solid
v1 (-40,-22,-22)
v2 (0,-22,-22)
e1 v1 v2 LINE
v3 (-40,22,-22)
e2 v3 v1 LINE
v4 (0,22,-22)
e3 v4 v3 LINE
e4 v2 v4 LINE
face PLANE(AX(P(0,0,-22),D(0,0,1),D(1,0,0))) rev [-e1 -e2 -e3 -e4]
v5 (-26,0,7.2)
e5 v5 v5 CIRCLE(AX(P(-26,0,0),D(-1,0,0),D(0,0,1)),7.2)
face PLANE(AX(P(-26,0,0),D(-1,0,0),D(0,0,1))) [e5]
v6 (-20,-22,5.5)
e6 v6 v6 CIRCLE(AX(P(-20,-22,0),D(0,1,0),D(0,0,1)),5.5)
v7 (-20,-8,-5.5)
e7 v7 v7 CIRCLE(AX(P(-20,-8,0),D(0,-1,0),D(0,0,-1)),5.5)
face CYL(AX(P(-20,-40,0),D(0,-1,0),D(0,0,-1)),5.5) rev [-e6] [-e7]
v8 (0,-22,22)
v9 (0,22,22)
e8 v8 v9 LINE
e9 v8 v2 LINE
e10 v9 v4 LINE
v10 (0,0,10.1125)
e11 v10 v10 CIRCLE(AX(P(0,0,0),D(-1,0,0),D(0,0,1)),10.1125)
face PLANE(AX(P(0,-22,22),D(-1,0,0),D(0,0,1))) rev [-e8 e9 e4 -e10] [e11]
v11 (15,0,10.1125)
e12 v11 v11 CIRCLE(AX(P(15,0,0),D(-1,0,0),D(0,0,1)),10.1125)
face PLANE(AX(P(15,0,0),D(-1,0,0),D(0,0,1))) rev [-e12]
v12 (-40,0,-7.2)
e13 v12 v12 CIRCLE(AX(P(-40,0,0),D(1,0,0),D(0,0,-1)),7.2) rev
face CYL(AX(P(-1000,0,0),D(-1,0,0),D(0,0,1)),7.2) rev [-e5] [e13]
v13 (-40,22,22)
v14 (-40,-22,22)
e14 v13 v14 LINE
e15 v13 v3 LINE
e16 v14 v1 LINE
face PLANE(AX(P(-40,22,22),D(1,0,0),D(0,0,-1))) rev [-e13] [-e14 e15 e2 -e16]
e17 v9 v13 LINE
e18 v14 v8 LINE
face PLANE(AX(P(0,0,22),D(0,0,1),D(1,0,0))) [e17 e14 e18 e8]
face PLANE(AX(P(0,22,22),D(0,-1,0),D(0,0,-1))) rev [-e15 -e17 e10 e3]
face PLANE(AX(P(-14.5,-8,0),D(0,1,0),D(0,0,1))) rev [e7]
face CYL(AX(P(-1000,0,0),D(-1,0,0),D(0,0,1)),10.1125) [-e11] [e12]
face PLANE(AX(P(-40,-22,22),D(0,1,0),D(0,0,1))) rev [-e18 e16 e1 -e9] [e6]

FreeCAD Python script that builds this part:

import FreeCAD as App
import Part
import Sketcher


def add_polygon(sketch, points):
    """Adds a closed chain of lines whose ends are joined by coincident constraints."""
    first, n = sketch.GeometryCount, len(points)
    for a, b in zip(points, points[1:] + points[:1]):
        sketch.addGeometry(Part.LineSegment(App.Vector(*a, 0), App.Vector(*b, 0)), False)
    for i in range(n):
        sketch.addConstraint(Sketcher.Constraint("Coincident", first + i, 2, first + (i + 1) % n, 1))

doc = App.newDocument("Part")
body = doc.addObject("PartDesign::Body", "Body")

# Sketch on XY plane
sketch1 = body.newObject("Sketcher::SketchObject", "Sketch")
sketch1.AttachmentSupport = (doc.getObject("XY_Plane"), [""])
sketch1.MapMode = "FlatFace"
add_polygon(sketch1, [(-40, 22), (-40, -22), (0, -22), (0, 22)])  # lines 0-3
sketch1.addConstraint(Sketcher.Constraint("Vertical", 0))
sketch1.addConstraint(Sketcher.Constraint("Horizontal", 1))
sketch1.addConstraint(Sketcher.Constraint("Vertical", 2))
sketch1.addConstraint(Sketcher.Constraint("Horizontal", 3))
sketch1.addConstraint(Sketcher.Constraint("Symmetric", 1, 2, 2, 2, -1, 1))
sketch1.addConstraint(Sketcher.Constraint("DistanceX", 1, 1, 1, 2, 40.0))
sketch1.addConstraint(Sketcher.Constraint("DistanceY", 0, 2, 0, 1, 44.0))
pad1 = body.newObject("PartDesign::Pad", "Pad")
pad1.Profile = sketch1
pad1.Length = 44
pad1.Midplane = True

# Sketch on XY plane
sketch2 = body.newObject("Sketcher::SketchObject", "Sketch001")
sketch2.AttachmentSupport = (doc.getObject("XY_Plane"), [""])
sketch2.MapMode = "FlatFace"
add_polygon(sketch2, [(0, 10), (0, 0), (15, 0), (15, 10)])  # lines 0-3
sketch2.addConstraint(Sketcher.Constraint("Vertical", 0))
sketch2.addConstraint(Sketcher.Constraint("Horizontal", 1))
sketch2.addConstraint(Sketcher.Constraint("Vertical", 2))
sketch2.addConstraint(Sketcher.Constraint("Horizontal", 3))
sketch2.addConstraint(Sketcher.Constraint("Coincident", 0, 2, -1, 1))
sketch2.addConstraint(Sketcher.Constraint("DistanceX", 1, 1, 1, 2, 15.0))
sketch2.addConstraint(Sketcher.Constraint("DistanceY", 0, 2, 0, 1, 10.1125))
revolution = body.newObject("PartDesign::Revolution", "Revolution")
revolution.Profile = sketch2
revolution.ReferenceAxis = (sketch2, ["H_Axis"])
revolution.Angle = 360

# Sketch on XY plane
sketch3 = body.newObject("Sketcher::SketchObject", "Sketch002")
sketch3.AttachmentSupport = (doc.getObject("XY_Plane"), [""])
sketch3.MapMode = "FlatFace"
add_polygon(sketch3, [(-41, 7), (-41, 0), (-26, 0), (-26, 7)])  # lines 0-3
sketch3.addConstraint(Sketcher.Constraint("Vertical", 0))
sketch3.addConstraint(Sketcher.Constraint("Horizontal", 1))
sketch3.addConstraint(Sketcher.Constraint("Vertical", 2))
sketch3.addConstraint(Sketcher.Constraint("Horizontal", 3))
sketch3.addConstraint(Sketcher.Constraint("PointOnObject", 0, 2, -1))
sketch3.addConstraint(Sketcher.Constraint("DistanceX", 1, 1, 1, 2, 15.0))
sketch3.addConstraint(Sketcher.Constraint("DistanceY", 0, 2, 0, 1, 7.2))
sketch3.addConstraint(Sketcher.Constraint("DistanceX", 0, 2, -1, 1, 41.0))
groove = body.newObject("PartDesign::Groove", "Groove")
groove.Profile = sketch3
groove.ReferenceAxis = (sketch3, ["H_Axis"])
groove.Angle = 360

# Sketch on XY plane
sketch4 = body.newObject("Sketcher::SketchObject", "Sketch003")
sketch4.AttachmentSupport = (doc.getObject("XY_Plane"), [""])
sketch4.MapMode = "FlatFace"
add_polygon(sketch4, [(-20, -8), (-20, -23), (-14, -23), (-14, -8)])  # lines 0-3
sketch4.addGeometry(Part.LineSegment(App.Vector(-20, -23, 0), App.Vector(-20, -8, 0)), True)  # axis
sketch4.addConstraint(Sketcher.Constraint("Vertical", 0))
sketch4.addConstraint(Sketcher.Constraint("Horizontal", 1))
sketch4.addConstraint(Sketcher.Constraint("Vertical", 2))
sketch4.addConstraint(Sketcher.Constraint("Horizontal", 3))
sketch4.addConstraint(Sketcher.Constraint("Vertical", 4))
sketch4.addConstraint(Sketcher.Constraint("Coincident", 4, 1, 0, 2))
sketch4.addConstraint(Sketcher.Constraint("Horizontal", 2, 2, 4, 2))
sketch4.addConstraint(Sketcher.Constraint("DistanceY", 0, 2, 0, 1, 15.0))
sketch4.addConstraint(Sketcher.Constraint("DistanceX", 1, 1, 1, 2, 5.5))
sketch4.addConstraint(Sketcher.Constraint("DistanceX", 0, 2, -1, 1, 20.0))
sketch4.addConstraint(Sketcher.Constraint("DistanceY", 0, 2, -1, 1, 23.0))
groove2 = body.newObject("PartDesign::Groove", "Groove001")
groove2.Profile = sketch4
groove2.ReferenceAxis = (sketch4, ["Axis0"])
groove2.Angle = 360

doc.recompute()
